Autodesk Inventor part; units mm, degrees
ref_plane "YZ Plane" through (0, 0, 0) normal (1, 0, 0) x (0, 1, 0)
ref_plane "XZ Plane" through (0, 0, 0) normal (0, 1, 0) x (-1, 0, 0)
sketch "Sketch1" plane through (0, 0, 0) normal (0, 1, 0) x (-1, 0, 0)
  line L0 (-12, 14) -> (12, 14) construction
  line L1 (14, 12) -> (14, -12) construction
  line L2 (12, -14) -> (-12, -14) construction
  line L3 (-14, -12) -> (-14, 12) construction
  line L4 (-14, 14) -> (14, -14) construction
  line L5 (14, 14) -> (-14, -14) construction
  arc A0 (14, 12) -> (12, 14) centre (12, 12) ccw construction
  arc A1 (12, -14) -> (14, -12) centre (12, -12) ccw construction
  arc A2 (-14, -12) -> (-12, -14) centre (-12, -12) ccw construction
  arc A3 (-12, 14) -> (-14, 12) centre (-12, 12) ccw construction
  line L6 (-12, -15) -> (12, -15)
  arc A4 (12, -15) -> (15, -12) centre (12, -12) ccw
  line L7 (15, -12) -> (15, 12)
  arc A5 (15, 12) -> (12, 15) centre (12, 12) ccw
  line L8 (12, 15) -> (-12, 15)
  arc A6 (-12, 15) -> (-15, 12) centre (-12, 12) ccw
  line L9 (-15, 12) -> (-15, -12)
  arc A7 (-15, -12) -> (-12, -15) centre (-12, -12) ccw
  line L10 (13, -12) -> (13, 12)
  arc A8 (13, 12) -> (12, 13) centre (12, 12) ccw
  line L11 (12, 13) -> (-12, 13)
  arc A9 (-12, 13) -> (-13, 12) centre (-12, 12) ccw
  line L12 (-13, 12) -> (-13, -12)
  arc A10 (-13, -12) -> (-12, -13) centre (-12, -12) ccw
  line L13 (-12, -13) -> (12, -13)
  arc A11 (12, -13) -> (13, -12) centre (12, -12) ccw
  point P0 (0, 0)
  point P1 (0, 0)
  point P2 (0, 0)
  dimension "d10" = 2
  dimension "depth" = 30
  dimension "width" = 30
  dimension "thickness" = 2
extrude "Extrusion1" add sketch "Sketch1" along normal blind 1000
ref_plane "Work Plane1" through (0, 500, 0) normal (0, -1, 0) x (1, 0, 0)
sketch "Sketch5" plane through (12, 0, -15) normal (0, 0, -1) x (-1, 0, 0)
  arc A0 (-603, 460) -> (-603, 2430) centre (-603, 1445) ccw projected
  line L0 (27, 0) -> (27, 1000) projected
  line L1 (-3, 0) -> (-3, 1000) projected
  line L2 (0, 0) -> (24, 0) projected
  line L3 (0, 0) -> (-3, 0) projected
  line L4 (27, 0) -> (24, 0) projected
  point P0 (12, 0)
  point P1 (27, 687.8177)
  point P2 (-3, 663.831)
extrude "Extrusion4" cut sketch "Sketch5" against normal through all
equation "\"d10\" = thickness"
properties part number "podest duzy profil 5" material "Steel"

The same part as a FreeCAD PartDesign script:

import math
import FreeCAD as App
import Part
import Sketcher

doc = App.newDocument("Part")
body = doc.addObject("PartDesign::Body", "Body")

sketch1 = body.newObject("Sketcher::SketchObject", "Sketch")
sketch1.AttachmentSupport = (doc.getObject("XZ_Plane"), [""])
sketch1.MapMode = "FlatFace"
sketch1.addGeometry([
    Part.ArcOfCircle(Part.Circle(App.Vector(12, -12, 0), App.Vector(0, 0, 1), 3), math.radians(-90), math.radians(0)),
    Part.LineSegment(App.Vector(12, -15, 0), App.Vector(-12, -15, 0)),
    Part.ArcOfCircle(Part.Circle(App.Vector(-12, -12, 0), App.Vector(0, 0, 1), 3), math.radians(180), math.radians(270)),
    Part.LineSegment(App.Vector(-15, -12, 0), App.Vector(-15, 12, 0)),
    Part.ArcOfCircle(Part.Circle(App.Vector(-12, 12, 0), App.Vector(0, 0, 1), 3), math.radians(90), math.radians(180)),
    Part.LineSegment(App.Vector(-12, 15, 0), App.Vector(12, 15, 0)),
    Part.ArcOfCircle(Part.Circle(App.Vector(12, 12, 0), App.Vector(0, 0, 1), 3), math.radians(0), math.radians(90)),
    Part.LineSegment(App.Vector(15, 12, 0), App.Vector(15, -12, 0)),
    Part.LineSegment(App.Vector(-13, 12, 0), App.Vector(-13, -12, 0)),
    Part.ArcOfCircle(Part.Circle(App.Vector(-12, -12, 0), App.Vector(0, 0, 1), 1), math.radians(180), math.radians(270)),
    Part.LineSegment(App.Vector(-12, -13, 0), App.Vector(12, -13, 0)),
    Part.ArcOfCircle(Part.Circle(App.Vector(12, -12, 0), App.Vector(0, 0, 1), 1), math.radians(-90), math.radians(0)),
    Part.LineSegment(App.Vector(13, -12, 0), App.Vector(13, 12, 0)),
    Part.ArcOfCircle(Part.Circle(App.Vector(12, 12, 0), App.Vector(0, 0, 1), 1), math.radians(0), math.radians(90)),
    Part.LineSegment(App.Vector(12, 13, 0), App.Vector(-12, 13, 0)),
    Part.ArcOfCircle(Part.Circle(App.Vector(-12, 12, 0), App.Vector(0, 0, 1), 1), math.radians(90), math.radians(180)),
], False)
sketch1.addConstraint([
    Sketcher.Constraint("Tangent", 0, 1, 1, 1),
    Sketcher.Constraint("Tangent", 1, 2, 2, 2),
    Sketcher.Constraint("Tangent", 2, 1, 3, 1),
    Sketcher.Constraint("Tangent", 3, 2, 4, 2),
    Sketcher.Constraint("Tangent", 4, 1, 5, 1),
    Sketcher.Constraint("Tangent", 5, 2, 6, 2),
    Sketcher.Constraint("Tangent", 6, 1, 7, 1),
    Sketcher.Constraint("Tangent", 7, 2, 0, 2),
    Sketcher.Constraint("Tangent", 8, 2, 9, 1),
    Sketcher.Constraint("Tangent", 9, 2, 10, 1),
    Sketcher.Constraint("Tangent", 10, 2, 11, 1),
    Sketcher.Constraint("Tangent", 11, 2, 12, 1),
    Sketcher.Constraint("Tangent", 12, 2, 13, 1),
    Sketcher.Constraint("Tangent", 13, 2, 14, 1),
    Sketcher.Constraint("Tangent", 14, 2, 15, 1),
    Sketcher.Constraint("Tangent", 15, 2, 8, 1),
    Sketcher.Constraint("Horizontal", 1),
    Sketcher.Constraint("Vertical", 3),
    Sketcher.Constraint("Horizontal", 5),
    Sketcher.Constraint("Vertical", 7),
    Sketcher.Constraint("Vertical", 8),
    Sketcher.Constraint("Horizontal", 10),
    Sketcher.Constraint("Vertical", 12),
    Sketcher.Constraint("Horizontal", 14),
    Sketcher.Constraint("Coincident", 9, 3, 2, 3),
    Sketcher.Constraint("Coincident", 11, 3, 0, 3),
    Sketcher.Constraint("Coincident", 13, 3, 6, 3),
    Sketcher.Constraint("Equal", 0, 2),
    Sketcher.Constraint("Equal", 2, 4),
    Sketcher.Constraint("Equal", 4, 6),
    Sketcher.Constraint("Equal", 13, 15),
    Sketcher.Constraint("Symmetric", 0, 3, 4, 3, -1, 1),
    Sketcher.Constraint("Equal", 14, 3),
    Sketcher.Constraint("Radius", 9, 1.0),
    Sketcher.Constraint("Radius", 0, 3.0),
    Sketcher.Constraint("DistanceX", 1, 2, 1, 1, 24.0),
])
pad1 = body.newObject("PartDesign::Pad", "Pad")
pad1.Profile = sketch1
pad1.Length = 1000
pad1.Reversed = True

sketch2 = body.newObject("Sketcher::SketchObject", "Sketch001")
sketch2.AttachmentSupport = (doc.getObject("XY_Plane"), [""])
sketch2.MapMode = "FlatFace"
sketch2.AttachmentOffset = App.Placement(App.Vector(0, 0, -15), App.Rotation())
sketch2.addGeometry([
    Part.ArcOfCircle(Part.Circle(App.Vector(615, 1445, 0), App.Vector(0, 0, 1), 985), math.radians(-129.76), math.radians(-127.53)),
    Part.LineSegment(App.Vector(15, 664, 0), App.Vector(15, 0, 0)),
    Part.LineSegment(App.Vector(15, 0, 0), App.Vector(-15, 0, 0)),
    Part.LineSegment(App.Vector(-15, 0, 0), App.Vector(-15, 688, 0)),
], False)
sketch2.addConstraint([
    Sketcher.Constraint("Coincident", 0, 2, 1, 1),
    Sketcher.Constraint("Coincident", 1, 2, 2, 1),
    Sketcher.Constraint("Coincident", 2, 2, 3, 1),
    Sketcher.Constraint("Coincident", 3, 2, 0, 1),
    Sketcher.Constraint("Vertical", 1),
    Sketcher.Constraint("Horizontal", 2),
    Sketcher.Constraint("Vertical", 3),
    Sketcher.Constraint("Symmetric", 1, 2, 2, 2, -1, 1),
    Sketcher.Constraint("Radius", 0, 985.0),
    Sketcher.Constraint("DistanceX", 2, 2, 2, 1, 30.0),
    Sketcher.Constraint("DistanceX", -1, 1, 0, 3, 615.0),
    Sketcher.Constraint("DistanceY", -1, 1, 0, 3, 1445.0),
])
pocket1 = body.newObject("PartDesign::Pocket", "Pocket")
pocket1.Profile = sketch2
pocket1.Type = "ThroughAll"
pocket1.Reversed = True

doc.recompute()
